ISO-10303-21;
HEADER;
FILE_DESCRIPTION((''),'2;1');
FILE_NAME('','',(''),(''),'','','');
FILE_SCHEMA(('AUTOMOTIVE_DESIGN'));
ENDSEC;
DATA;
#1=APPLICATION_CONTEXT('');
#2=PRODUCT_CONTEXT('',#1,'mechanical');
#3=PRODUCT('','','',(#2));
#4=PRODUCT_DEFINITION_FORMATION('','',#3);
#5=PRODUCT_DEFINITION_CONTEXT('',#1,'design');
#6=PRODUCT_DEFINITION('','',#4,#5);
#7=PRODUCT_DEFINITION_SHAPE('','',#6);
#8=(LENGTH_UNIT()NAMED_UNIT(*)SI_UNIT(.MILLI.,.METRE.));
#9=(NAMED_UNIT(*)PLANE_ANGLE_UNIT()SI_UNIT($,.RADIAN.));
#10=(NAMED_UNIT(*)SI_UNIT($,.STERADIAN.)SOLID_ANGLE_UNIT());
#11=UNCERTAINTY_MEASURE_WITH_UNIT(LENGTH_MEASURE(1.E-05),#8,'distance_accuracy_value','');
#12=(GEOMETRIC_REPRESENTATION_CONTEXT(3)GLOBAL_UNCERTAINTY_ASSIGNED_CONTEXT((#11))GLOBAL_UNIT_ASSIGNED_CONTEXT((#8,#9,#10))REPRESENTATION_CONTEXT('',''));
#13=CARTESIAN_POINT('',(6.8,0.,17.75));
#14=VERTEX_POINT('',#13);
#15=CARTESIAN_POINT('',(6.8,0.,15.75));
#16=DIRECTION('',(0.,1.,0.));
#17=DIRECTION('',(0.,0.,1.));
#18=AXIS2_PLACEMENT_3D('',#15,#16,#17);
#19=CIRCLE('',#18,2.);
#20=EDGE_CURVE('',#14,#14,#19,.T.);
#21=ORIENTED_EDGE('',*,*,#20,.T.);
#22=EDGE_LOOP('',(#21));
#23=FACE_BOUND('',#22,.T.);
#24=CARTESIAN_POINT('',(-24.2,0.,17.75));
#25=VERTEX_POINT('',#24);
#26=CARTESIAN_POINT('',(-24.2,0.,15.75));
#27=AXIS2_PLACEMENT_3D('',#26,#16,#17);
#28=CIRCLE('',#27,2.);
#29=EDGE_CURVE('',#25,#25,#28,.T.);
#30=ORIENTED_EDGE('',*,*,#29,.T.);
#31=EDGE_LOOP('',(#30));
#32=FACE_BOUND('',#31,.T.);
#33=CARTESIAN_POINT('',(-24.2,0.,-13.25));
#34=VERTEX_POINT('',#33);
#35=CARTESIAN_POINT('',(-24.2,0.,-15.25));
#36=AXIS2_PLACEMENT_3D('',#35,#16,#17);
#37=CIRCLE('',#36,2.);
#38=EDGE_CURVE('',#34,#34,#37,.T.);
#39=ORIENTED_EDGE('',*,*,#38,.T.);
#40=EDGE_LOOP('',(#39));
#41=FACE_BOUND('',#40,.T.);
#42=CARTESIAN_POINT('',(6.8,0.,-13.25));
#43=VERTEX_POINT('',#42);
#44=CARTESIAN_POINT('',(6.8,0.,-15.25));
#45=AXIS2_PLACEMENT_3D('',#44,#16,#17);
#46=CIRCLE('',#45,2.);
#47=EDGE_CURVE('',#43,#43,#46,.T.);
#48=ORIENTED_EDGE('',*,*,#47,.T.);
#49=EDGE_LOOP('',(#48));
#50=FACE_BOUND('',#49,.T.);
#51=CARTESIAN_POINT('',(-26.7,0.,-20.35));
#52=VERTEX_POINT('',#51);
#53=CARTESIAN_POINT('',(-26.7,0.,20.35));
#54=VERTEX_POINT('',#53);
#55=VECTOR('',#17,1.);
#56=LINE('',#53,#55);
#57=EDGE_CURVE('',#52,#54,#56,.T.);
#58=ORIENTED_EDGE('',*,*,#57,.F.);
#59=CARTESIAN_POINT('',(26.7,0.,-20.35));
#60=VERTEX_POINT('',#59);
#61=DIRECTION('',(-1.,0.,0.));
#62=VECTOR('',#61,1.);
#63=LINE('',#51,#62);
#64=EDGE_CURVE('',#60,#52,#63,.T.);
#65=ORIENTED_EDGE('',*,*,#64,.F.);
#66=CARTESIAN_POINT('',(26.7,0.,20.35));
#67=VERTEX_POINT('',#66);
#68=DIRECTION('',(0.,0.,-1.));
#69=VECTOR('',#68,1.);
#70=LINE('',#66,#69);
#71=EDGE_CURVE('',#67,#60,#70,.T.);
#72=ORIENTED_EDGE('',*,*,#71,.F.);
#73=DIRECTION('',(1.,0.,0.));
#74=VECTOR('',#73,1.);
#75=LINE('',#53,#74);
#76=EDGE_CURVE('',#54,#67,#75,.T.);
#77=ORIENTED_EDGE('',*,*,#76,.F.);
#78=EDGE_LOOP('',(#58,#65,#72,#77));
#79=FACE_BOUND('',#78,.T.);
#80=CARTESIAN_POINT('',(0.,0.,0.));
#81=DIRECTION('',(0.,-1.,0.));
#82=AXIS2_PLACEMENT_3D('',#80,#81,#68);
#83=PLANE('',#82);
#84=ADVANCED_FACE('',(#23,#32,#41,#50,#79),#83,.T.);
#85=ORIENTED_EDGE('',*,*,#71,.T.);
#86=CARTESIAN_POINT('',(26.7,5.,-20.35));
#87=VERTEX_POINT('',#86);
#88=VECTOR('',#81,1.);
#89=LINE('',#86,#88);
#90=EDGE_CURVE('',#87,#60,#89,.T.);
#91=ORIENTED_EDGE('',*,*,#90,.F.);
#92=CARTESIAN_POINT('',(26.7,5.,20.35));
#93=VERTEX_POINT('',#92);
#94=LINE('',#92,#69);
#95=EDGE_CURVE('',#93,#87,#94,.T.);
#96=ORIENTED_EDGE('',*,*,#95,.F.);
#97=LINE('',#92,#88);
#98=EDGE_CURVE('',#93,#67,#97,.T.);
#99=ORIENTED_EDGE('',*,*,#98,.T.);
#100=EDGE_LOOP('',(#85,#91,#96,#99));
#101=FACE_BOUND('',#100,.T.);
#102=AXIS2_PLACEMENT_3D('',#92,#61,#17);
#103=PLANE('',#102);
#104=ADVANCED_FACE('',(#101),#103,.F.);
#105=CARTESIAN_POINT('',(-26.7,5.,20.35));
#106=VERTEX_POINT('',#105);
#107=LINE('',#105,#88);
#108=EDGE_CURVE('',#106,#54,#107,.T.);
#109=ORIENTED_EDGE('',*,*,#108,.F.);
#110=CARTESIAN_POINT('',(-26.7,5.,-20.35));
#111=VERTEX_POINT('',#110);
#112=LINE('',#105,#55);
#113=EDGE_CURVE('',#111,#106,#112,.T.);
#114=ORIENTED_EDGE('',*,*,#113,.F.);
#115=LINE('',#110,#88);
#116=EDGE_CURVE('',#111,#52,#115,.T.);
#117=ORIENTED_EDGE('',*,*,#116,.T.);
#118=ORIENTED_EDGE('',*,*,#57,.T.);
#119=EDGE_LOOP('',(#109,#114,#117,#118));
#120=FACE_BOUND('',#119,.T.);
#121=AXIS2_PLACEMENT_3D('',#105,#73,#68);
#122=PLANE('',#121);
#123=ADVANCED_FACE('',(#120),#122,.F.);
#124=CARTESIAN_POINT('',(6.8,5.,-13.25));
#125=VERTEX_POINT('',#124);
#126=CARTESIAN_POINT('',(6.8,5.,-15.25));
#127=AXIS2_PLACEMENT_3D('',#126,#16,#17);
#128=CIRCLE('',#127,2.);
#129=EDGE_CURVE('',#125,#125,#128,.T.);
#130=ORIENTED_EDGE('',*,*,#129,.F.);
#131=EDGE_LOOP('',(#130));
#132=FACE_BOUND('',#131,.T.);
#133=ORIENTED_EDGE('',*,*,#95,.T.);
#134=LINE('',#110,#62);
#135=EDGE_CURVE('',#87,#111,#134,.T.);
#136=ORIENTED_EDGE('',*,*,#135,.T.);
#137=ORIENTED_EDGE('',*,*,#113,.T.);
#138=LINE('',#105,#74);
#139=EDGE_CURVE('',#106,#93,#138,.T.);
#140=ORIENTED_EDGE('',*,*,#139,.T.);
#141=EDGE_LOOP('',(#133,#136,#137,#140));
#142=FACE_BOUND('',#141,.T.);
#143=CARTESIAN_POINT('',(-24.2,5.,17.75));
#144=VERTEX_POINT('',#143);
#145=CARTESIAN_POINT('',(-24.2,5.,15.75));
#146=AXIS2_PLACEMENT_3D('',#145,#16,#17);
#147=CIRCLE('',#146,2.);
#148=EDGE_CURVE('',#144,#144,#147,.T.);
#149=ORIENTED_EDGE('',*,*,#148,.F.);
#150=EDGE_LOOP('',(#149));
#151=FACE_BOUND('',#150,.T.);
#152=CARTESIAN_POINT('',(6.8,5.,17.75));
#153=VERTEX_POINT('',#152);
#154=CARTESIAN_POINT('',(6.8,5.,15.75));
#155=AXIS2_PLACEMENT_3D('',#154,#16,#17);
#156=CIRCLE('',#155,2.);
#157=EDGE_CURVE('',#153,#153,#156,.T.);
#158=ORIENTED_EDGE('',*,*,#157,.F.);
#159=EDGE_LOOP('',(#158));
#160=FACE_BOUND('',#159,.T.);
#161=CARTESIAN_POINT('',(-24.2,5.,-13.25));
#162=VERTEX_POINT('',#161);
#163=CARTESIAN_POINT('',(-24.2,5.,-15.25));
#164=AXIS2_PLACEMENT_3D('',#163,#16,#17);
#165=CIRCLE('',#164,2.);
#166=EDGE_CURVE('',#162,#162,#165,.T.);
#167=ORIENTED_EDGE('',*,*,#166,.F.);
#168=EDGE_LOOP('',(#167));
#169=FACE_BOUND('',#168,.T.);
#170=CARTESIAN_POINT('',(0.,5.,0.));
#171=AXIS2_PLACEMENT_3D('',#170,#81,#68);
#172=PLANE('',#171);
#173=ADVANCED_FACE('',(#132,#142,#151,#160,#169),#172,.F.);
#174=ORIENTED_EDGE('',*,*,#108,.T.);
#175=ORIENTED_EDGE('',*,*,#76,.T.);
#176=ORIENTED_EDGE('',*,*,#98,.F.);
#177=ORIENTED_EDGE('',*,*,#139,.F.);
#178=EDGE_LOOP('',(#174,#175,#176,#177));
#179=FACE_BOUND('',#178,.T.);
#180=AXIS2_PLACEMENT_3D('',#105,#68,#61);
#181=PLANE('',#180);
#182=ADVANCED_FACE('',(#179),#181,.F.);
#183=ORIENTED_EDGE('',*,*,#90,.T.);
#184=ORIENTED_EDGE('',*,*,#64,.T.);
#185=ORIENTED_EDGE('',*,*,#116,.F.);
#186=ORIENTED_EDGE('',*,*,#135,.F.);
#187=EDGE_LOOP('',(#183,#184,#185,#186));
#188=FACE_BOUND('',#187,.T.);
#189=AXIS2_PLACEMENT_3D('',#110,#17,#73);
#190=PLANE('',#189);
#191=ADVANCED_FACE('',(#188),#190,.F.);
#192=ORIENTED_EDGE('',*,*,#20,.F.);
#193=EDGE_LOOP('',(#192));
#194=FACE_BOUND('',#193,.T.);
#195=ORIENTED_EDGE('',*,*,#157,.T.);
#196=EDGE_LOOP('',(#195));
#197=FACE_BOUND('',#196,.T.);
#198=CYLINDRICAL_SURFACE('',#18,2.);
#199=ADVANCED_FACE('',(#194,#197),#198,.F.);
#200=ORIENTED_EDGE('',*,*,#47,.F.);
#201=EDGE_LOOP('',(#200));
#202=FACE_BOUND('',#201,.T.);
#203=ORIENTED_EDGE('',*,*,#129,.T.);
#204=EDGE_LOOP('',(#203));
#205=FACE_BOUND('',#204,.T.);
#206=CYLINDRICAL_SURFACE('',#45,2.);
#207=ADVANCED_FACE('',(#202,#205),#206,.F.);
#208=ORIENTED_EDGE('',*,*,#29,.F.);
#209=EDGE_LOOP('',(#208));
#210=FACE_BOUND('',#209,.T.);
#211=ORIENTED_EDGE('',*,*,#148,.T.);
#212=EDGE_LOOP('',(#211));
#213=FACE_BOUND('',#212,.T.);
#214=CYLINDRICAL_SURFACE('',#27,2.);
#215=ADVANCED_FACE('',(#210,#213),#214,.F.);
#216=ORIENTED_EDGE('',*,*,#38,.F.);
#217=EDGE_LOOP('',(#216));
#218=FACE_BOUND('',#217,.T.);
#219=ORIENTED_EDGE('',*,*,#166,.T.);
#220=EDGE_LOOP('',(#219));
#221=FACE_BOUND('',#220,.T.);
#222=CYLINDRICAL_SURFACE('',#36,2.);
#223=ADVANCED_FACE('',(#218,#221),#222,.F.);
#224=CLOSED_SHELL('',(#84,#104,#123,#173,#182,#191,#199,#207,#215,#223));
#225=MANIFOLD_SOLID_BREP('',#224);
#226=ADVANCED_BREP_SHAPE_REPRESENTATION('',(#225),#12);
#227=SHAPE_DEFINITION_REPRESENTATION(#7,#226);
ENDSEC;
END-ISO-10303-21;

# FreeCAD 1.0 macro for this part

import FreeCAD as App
import Part
import Sketcher
from FreeCAD import Vector


def add_polygon(sketch, points):
    """Adds a closed chain of lines whose ends are joined by coincident constraints."""
    first, n = sketch.GeometryCount, len(points)
    for a, b in zip(points, points[1:] + points[:1]):
        sketch.addGeometry(Part.LineSegment(App.Vector(*a, 0), App.Vector(*b, 0)), False)
    for i in range(n):
        sketch.addConstraint(Sketcher.Constraint("Coincident", first + i, 2, first + (i + 1) % n, 1))

doc = App.newDocument("Part")
body = doc.addObject("PartDesign::Body", "Body")

# Sketch on XZ plane
sketch1 = body.newObject("Sketcher::SketchObject", "Sketch")
sketch1.AttachmentSupport = (doc.getObject("XZ_Plane"), [""])
sketch1.MapMode = "FlatFace"
add_polygon(sketch1, [(-27, -20), (-27, 20), (27, 20), (27, -20)])  # lines 0-3
sketch1.addConstraint([
    Sketcher.Constraint("Vertical", 0),
    Sketcher.Constraint("Horizontal", 1),
    Sketcher.Constraint("Vertical", 2),
    Sketcher.Constraint("Horizontal", 3),
    Sketcher.Constraint("Symmetric", 0, 2, 2, 2, -1, 1),
    Sketcher.Constraint("DistanceX", 1, 1, 1, 2, 53.4),
    Sketcher.Constraint("DistanceY", 0, 1, 0, 2, 40.7),
])
pad1 = body.newObject("PartDesign::Pad", "Pad")
pad1.Profile = sketch1
pad1.Length = 5
pad1.Reversed = True

# Sketch on XZ plane
sketch2 = body.newObject("Sketcher::SketchObject", "Sketch001")
sketch2.AttachmentSupport = (doc.getObject("XZ_Plane"), [""])
sketch2.MapMode = "FlatFace"
sketch2.AttachmentOffset = App.Placement(Vector(0, 0, -5), App.Rotation())
sketch2.addGeometry([
    Part.Circle(Vector(-24.2, -15.2, 0), Vector(0, 0, 1), 2),
    Part.Circle(Vector(-24.2, 15.8, 0), Vector(0, 0, 1), 2),
    Part.Circle(Vector(6.8, -15.2, 0), Vector(0, 0, 1), 2),
    Part.Circle(Vector(6.8, 15.8, 0), Vector(0, 0, 1), 2),
], False)
sketch2.addConstraint([
    Sketcher.Constraint("Equal", 0, 1),
    Sketcher.Constraint("Equal", 1, 2),
    Sketcher.Constraint("Equal", 2, 3),
    Sketcher.Constraint("Horizontal", 0, 3, 2, 3),
    Sketcher.Constraint("Horizontal", 1, 3, 3, 3),
    Sketcher.Constraint("Vertical", 0, 3, 1, 3),
    Sketcher.Constraint("Vertical", 2, 3, 3, 3),
    Sketcher.Constraint("Diameter", 0, 4.0),
    Sketcher.Constraint("DistanceY", 0, 3, 1, 3, 31.0),
    Sketcher.Constraint("DistanceX", 0, 3, 2, 3, 31.0),
    Sketcher.Constraint("DistanceX", 0, 3, -1, 1, 24.2),
    Sketcher.Constraint("DistanceY", 0, 3, -1, 1, 15.25),
])
pocket1 = body.newObject("PartDesign::Pocket", "Pocket")
pocket1.Profile = sketch2
pocket1.Length = 5
pocket1.Reversed = True

doc.recompute()
